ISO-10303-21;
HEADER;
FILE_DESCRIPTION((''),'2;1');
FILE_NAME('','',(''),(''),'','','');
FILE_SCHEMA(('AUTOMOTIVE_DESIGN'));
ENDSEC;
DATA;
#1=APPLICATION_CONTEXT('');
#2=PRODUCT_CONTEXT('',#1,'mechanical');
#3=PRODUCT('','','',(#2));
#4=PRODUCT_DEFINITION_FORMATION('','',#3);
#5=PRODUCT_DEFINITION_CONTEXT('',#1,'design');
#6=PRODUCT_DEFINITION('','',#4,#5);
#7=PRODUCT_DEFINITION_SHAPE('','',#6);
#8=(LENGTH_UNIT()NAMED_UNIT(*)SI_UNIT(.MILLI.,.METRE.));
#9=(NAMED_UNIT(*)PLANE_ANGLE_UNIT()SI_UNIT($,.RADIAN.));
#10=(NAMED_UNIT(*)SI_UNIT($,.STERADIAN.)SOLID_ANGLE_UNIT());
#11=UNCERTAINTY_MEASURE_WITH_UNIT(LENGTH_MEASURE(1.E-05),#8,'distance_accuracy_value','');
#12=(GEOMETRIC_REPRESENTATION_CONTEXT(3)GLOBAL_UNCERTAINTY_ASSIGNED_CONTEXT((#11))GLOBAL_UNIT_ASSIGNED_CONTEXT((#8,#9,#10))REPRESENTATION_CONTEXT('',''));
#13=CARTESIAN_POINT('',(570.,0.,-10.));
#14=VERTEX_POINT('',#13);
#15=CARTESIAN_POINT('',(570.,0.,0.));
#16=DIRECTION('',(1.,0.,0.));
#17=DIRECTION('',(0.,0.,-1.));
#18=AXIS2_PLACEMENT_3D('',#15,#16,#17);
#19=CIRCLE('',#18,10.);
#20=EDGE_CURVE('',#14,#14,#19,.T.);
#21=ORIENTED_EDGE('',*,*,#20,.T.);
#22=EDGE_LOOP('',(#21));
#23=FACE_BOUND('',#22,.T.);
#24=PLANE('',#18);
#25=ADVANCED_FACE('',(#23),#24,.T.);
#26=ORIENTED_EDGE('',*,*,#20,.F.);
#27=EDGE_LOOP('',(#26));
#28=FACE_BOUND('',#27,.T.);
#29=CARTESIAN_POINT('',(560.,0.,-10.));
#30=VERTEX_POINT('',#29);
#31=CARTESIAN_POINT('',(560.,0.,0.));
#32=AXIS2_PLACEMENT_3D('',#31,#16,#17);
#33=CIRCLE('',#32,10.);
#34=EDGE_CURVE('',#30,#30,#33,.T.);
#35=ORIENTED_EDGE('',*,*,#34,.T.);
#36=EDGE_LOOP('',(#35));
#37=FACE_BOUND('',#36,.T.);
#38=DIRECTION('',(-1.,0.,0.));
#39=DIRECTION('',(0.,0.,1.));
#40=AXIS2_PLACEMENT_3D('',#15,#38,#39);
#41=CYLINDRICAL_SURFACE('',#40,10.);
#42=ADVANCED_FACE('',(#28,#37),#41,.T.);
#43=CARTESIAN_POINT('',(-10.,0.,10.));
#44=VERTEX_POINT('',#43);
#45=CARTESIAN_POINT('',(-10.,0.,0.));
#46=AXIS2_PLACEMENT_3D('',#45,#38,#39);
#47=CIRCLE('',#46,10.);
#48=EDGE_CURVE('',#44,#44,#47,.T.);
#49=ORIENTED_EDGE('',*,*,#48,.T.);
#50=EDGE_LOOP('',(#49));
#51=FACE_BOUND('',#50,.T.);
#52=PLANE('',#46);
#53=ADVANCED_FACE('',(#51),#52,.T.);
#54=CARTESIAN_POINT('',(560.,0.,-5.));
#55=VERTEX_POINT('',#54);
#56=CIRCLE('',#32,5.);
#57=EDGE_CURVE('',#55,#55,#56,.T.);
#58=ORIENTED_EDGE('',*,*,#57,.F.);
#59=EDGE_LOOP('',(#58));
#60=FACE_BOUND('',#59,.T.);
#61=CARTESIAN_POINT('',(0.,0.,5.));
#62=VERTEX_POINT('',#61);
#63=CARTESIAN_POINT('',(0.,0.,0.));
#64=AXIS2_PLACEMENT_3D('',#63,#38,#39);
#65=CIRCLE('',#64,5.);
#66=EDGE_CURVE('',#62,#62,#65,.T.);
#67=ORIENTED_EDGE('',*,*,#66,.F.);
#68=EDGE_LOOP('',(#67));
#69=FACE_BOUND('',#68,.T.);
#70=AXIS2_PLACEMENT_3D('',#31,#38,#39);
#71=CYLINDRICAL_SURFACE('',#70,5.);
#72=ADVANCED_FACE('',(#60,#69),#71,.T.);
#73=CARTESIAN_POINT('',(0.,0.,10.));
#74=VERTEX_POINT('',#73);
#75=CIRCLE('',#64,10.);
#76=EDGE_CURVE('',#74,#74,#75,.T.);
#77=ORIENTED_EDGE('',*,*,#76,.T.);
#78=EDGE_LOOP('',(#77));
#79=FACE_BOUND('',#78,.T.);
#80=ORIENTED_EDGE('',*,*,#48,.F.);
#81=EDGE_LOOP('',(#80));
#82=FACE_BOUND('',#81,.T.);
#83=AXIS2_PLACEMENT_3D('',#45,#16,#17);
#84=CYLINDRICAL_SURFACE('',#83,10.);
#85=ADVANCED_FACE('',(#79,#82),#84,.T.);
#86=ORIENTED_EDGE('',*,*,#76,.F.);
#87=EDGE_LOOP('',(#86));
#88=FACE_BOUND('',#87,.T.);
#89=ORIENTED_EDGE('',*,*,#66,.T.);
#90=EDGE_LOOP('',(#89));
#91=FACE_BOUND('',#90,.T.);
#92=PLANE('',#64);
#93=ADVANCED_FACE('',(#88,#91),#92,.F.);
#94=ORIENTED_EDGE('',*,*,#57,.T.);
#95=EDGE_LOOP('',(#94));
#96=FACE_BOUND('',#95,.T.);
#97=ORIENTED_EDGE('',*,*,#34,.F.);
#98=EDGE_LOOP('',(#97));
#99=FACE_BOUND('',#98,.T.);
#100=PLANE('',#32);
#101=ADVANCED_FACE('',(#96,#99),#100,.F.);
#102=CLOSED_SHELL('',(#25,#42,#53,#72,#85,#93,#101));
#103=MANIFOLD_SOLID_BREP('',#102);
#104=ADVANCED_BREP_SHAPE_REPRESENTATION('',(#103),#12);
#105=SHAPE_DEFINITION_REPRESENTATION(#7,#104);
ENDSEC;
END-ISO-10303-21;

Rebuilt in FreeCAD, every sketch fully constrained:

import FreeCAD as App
import Part
import Sketcher

doc = App.newDocument("Part")
params = doc.addObject("Spreadsheet::Sheet", "Params")
for row, (alias, value) in enumerate([
    ("sketch1_diameter", "10 mm"),
    ("pad1_length", "560 mm"),
    ("sketch2_diameter", "20 mm"),
    ("pad2_length", "10 mm"),
    ("sketch3_diameter", "20 mm"),
    ("pad3_length", "10 mm"),
], start=1):
    params.set(f"A{row}", alias)
    params.set(f"B{row}", "=" + value)
    params.setAlias(f"B{row}", alias)

body = doc.addObject("PartDesign::Body", "Body")

sketch1 = body.newObject("Sketcher::SketchObject", "Sketch")
sketch1.AttachmentSupport = (doc.getObject("YZ_Plane"), [""])
sketch1.MapMode = "FlatFace"
sketch1.addGeometry(Part.Circle(App.Vector(0, 0, 0), App.Vector(0, 0, 1), 5), False)
sketch1.addConstraint([
    Sketcher.Constraint("Coincident", 0, 3, -1, 1),
    Sketcher.Constraint("Diameter", 0, 10.0),
])
sketch1.setExpression("Constraints[1]", "Params.sketch1_diameter")
pad1 = body.newObject("PartDesign::Pad", "Pad")
pad1.Profile = sketch1
pad1.setExpression("Length", "Params.pad1_length")

sketch2 = body.newObject("Sketcher::SketchObject", "Sketch001")
sketch2.AttachmentSupport = (doc.getObject("YZ_Plane"), [""])
sketch2.MapMode = "FlatFace"
sketch2.AttachmentOffset = App.Placement(App.Vector(0, 0, 560), App.Rotation())
sketch2.addGeometry(Part.Circle(App.Vector(0, 0, 0), App.Vector(0, 0, 1), 10), False)
sketch2.addConstraint([
    Sketcher.Constraint("Coincident", 0, 3, -1, 1),
    Sketcher.Constraint("Diameter", 0, 20.0),
])
sketch2.setExpression("Constraints[1]", "Params.sketch2_diameter")
pad2 = body.newObject("PartDesign::Pad", "Pad001")
pad2.Profile = sketch2
pad2.setExpression("Length", "Params.pad2_length")

sketch3 = body.newObject("Sketcher::SketchObject", "Sketch002")
sketch3.AttachmentSupport = (doc.getObject("YZ_Plane"), [""])
sketch3.MapMode = "FlatFace"
sketch3.addGeometry(Part.Circle(App.Vector(0, 0, 0), App.Vector(0, 0, 1), 10), False)
sketch3.addConstraint([
    Sketcher.Constraint("Coincident", 0, 3, -1, 1),
    Sketcher.Constraint("Diameter", 0, 20.0),
])
sketch3.setExpression("Constraints[1]", "Params.sketch3_diameter")
pad3 = body.newObject("PartDesign::Pad", "Pad002")
pad3.Profile = sketch3
pad3.setExpression("Length", "Params.pad3_length")
pad3.Reversed = True

doc.recompute()
